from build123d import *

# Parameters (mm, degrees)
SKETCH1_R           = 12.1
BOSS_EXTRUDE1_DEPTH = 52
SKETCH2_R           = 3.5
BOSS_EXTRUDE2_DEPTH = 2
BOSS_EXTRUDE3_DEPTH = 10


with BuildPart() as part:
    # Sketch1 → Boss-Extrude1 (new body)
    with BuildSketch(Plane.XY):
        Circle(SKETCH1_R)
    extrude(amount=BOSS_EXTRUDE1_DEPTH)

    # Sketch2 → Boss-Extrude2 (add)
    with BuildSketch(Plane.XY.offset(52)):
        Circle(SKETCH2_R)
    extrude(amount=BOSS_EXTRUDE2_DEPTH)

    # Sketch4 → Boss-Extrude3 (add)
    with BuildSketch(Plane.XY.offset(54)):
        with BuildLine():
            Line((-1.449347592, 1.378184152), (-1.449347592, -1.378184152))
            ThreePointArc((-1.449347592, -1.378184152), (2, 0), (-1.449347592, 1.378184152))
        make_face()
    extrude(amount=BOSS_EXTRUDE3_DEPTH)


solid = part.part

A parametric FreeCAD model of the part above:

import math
import FreeCAD as App
import Part
import Sketcher

V = App.Vector
Q = App.Units.Quantity

doc = App.newDocument("Part")
params = doc.addObject("Spreadsheet::Sheet", "Params")
for row, (alias, value) in enumerate([
    ("sketch1_diameter", "24.2 mm"),
    ("pad1_length", "52 mm"),
    ("sketch2_diameter", "7 mm"),
    ("pad2_length", "2 mm"),
    ("sketch3_radius", "2 mm"),
    ("pad3_length", "10 mm"),
], start=1):
    params.set(f"A{row}", alias)
    params.set(f"B{row}", "=" + value)
    params.setAlias(f"B{row}", alias)

body = doc.addObject("PartDesign::Body", "Body")

sketch1 = body.newObject("Sketcher::SketchObject", "Sketch")
sketch1.AttachmentSupport = (doc.getObject("XY_Plane"), [""])
sketch1.MapMode = "FlatFace"
sketch1.addGeometry(Part.Circle(V(0, 0, 0), V(0, 0, 1), 12), False)
sketch1.addConstraint(Sketcher.Constraint("Coincident", 0, 3, -1, 1))
sketch1.addConstraint(Sketcher.Constraint("Diameter", 0, Q("24.2 mm")))
sketch1.setExpression("Constraints[1]", "Params.sketch1_diameter")
pad1 = body.newObject("PartDesign::Pad", "Pad")
pad1.Profile = sketch1
pad1.setExpression("Length", "Params.pad1_length")

sketch2 = body.newObject("Sketcher::SketchObject", "Sketch001")
sketch2.AttachmentSupport = (doc.getObject("XY_Plane"), [""])
sketch2.MapMode = "FlatFace"
sketch2.AttachmentOffset = App.Placement(V(0, 0, 52), App.Rotation())
sketch2.addGeometry(Part.Circle(V(0, 0, 0), V(0, 0, 1), 3.5), False)
sketch2.addConstraint(Sketcher.Constraint("Coincident", 0, 3, -1, 1))
sketch2.addConstraint(Sketcher.Constraint("Diameter", 0, Q("7 mm")))
sketch2.setExpression("Constraints[1]", "Params.sketch2_diameter")
pad2 = body.newObject("PartDesign::Pad", "Pad001")
pad2.Profile = sketch2
pad2.setExpression("Length", "Params.pad2_length")

sketch3 = body.newObject("Sketcher::SketchObject", "Sketch002")
sketch3.AttachmentSupport = (doc.getObject("XY_Plane"), [""])
sketch3.MapMode = "FlatFace"
sketch3.AttachmentOffset = App.Placement(V(0, 0, 54), App.Rotation())
sketch3.addGeometry(Part.LineSegment(V(-1.4, 1.4, 0), V(-1.4, -1.4, 0)), False)
sketch3.addGeometry(Part.ArcOfCircle(Part.Circle(V(0, 0, 0), V(0, 0, 1), 2), math.radians(-136), math.radians(136)), False)
sketch3.addConstraint(Sketcher.Constraint("Coincident", 0, 1, 1, 2))
sketch3.addConstraint(Sketcher.Constraint("Coincident", 1, 1, 0, 2))
sketch3.addConstraint(Sketcher.Constraint("Vertical", 0))
sketch3.addConstraint(Sketcher.Constraint("Coincident", 1, 3, -1, 1))
sketch3.addConstraint(Sketcher.Constraint("Radius", 1, Q("2 mm")))
sketch3.addConstraint(Sketcher.Constraint("DistanceY", 0, 2, 0, 1, Q("2.756368 mm")))
sketch3.setExpression("Constraints[4]", "Params.sketch3_radius")
pad3 = body.newObject("PartDesign::Pad", "Pad002")
pad3.Profile = sketch3
pad3.setExpression("Length", "Params.pad3_length")

doc.recompute()
